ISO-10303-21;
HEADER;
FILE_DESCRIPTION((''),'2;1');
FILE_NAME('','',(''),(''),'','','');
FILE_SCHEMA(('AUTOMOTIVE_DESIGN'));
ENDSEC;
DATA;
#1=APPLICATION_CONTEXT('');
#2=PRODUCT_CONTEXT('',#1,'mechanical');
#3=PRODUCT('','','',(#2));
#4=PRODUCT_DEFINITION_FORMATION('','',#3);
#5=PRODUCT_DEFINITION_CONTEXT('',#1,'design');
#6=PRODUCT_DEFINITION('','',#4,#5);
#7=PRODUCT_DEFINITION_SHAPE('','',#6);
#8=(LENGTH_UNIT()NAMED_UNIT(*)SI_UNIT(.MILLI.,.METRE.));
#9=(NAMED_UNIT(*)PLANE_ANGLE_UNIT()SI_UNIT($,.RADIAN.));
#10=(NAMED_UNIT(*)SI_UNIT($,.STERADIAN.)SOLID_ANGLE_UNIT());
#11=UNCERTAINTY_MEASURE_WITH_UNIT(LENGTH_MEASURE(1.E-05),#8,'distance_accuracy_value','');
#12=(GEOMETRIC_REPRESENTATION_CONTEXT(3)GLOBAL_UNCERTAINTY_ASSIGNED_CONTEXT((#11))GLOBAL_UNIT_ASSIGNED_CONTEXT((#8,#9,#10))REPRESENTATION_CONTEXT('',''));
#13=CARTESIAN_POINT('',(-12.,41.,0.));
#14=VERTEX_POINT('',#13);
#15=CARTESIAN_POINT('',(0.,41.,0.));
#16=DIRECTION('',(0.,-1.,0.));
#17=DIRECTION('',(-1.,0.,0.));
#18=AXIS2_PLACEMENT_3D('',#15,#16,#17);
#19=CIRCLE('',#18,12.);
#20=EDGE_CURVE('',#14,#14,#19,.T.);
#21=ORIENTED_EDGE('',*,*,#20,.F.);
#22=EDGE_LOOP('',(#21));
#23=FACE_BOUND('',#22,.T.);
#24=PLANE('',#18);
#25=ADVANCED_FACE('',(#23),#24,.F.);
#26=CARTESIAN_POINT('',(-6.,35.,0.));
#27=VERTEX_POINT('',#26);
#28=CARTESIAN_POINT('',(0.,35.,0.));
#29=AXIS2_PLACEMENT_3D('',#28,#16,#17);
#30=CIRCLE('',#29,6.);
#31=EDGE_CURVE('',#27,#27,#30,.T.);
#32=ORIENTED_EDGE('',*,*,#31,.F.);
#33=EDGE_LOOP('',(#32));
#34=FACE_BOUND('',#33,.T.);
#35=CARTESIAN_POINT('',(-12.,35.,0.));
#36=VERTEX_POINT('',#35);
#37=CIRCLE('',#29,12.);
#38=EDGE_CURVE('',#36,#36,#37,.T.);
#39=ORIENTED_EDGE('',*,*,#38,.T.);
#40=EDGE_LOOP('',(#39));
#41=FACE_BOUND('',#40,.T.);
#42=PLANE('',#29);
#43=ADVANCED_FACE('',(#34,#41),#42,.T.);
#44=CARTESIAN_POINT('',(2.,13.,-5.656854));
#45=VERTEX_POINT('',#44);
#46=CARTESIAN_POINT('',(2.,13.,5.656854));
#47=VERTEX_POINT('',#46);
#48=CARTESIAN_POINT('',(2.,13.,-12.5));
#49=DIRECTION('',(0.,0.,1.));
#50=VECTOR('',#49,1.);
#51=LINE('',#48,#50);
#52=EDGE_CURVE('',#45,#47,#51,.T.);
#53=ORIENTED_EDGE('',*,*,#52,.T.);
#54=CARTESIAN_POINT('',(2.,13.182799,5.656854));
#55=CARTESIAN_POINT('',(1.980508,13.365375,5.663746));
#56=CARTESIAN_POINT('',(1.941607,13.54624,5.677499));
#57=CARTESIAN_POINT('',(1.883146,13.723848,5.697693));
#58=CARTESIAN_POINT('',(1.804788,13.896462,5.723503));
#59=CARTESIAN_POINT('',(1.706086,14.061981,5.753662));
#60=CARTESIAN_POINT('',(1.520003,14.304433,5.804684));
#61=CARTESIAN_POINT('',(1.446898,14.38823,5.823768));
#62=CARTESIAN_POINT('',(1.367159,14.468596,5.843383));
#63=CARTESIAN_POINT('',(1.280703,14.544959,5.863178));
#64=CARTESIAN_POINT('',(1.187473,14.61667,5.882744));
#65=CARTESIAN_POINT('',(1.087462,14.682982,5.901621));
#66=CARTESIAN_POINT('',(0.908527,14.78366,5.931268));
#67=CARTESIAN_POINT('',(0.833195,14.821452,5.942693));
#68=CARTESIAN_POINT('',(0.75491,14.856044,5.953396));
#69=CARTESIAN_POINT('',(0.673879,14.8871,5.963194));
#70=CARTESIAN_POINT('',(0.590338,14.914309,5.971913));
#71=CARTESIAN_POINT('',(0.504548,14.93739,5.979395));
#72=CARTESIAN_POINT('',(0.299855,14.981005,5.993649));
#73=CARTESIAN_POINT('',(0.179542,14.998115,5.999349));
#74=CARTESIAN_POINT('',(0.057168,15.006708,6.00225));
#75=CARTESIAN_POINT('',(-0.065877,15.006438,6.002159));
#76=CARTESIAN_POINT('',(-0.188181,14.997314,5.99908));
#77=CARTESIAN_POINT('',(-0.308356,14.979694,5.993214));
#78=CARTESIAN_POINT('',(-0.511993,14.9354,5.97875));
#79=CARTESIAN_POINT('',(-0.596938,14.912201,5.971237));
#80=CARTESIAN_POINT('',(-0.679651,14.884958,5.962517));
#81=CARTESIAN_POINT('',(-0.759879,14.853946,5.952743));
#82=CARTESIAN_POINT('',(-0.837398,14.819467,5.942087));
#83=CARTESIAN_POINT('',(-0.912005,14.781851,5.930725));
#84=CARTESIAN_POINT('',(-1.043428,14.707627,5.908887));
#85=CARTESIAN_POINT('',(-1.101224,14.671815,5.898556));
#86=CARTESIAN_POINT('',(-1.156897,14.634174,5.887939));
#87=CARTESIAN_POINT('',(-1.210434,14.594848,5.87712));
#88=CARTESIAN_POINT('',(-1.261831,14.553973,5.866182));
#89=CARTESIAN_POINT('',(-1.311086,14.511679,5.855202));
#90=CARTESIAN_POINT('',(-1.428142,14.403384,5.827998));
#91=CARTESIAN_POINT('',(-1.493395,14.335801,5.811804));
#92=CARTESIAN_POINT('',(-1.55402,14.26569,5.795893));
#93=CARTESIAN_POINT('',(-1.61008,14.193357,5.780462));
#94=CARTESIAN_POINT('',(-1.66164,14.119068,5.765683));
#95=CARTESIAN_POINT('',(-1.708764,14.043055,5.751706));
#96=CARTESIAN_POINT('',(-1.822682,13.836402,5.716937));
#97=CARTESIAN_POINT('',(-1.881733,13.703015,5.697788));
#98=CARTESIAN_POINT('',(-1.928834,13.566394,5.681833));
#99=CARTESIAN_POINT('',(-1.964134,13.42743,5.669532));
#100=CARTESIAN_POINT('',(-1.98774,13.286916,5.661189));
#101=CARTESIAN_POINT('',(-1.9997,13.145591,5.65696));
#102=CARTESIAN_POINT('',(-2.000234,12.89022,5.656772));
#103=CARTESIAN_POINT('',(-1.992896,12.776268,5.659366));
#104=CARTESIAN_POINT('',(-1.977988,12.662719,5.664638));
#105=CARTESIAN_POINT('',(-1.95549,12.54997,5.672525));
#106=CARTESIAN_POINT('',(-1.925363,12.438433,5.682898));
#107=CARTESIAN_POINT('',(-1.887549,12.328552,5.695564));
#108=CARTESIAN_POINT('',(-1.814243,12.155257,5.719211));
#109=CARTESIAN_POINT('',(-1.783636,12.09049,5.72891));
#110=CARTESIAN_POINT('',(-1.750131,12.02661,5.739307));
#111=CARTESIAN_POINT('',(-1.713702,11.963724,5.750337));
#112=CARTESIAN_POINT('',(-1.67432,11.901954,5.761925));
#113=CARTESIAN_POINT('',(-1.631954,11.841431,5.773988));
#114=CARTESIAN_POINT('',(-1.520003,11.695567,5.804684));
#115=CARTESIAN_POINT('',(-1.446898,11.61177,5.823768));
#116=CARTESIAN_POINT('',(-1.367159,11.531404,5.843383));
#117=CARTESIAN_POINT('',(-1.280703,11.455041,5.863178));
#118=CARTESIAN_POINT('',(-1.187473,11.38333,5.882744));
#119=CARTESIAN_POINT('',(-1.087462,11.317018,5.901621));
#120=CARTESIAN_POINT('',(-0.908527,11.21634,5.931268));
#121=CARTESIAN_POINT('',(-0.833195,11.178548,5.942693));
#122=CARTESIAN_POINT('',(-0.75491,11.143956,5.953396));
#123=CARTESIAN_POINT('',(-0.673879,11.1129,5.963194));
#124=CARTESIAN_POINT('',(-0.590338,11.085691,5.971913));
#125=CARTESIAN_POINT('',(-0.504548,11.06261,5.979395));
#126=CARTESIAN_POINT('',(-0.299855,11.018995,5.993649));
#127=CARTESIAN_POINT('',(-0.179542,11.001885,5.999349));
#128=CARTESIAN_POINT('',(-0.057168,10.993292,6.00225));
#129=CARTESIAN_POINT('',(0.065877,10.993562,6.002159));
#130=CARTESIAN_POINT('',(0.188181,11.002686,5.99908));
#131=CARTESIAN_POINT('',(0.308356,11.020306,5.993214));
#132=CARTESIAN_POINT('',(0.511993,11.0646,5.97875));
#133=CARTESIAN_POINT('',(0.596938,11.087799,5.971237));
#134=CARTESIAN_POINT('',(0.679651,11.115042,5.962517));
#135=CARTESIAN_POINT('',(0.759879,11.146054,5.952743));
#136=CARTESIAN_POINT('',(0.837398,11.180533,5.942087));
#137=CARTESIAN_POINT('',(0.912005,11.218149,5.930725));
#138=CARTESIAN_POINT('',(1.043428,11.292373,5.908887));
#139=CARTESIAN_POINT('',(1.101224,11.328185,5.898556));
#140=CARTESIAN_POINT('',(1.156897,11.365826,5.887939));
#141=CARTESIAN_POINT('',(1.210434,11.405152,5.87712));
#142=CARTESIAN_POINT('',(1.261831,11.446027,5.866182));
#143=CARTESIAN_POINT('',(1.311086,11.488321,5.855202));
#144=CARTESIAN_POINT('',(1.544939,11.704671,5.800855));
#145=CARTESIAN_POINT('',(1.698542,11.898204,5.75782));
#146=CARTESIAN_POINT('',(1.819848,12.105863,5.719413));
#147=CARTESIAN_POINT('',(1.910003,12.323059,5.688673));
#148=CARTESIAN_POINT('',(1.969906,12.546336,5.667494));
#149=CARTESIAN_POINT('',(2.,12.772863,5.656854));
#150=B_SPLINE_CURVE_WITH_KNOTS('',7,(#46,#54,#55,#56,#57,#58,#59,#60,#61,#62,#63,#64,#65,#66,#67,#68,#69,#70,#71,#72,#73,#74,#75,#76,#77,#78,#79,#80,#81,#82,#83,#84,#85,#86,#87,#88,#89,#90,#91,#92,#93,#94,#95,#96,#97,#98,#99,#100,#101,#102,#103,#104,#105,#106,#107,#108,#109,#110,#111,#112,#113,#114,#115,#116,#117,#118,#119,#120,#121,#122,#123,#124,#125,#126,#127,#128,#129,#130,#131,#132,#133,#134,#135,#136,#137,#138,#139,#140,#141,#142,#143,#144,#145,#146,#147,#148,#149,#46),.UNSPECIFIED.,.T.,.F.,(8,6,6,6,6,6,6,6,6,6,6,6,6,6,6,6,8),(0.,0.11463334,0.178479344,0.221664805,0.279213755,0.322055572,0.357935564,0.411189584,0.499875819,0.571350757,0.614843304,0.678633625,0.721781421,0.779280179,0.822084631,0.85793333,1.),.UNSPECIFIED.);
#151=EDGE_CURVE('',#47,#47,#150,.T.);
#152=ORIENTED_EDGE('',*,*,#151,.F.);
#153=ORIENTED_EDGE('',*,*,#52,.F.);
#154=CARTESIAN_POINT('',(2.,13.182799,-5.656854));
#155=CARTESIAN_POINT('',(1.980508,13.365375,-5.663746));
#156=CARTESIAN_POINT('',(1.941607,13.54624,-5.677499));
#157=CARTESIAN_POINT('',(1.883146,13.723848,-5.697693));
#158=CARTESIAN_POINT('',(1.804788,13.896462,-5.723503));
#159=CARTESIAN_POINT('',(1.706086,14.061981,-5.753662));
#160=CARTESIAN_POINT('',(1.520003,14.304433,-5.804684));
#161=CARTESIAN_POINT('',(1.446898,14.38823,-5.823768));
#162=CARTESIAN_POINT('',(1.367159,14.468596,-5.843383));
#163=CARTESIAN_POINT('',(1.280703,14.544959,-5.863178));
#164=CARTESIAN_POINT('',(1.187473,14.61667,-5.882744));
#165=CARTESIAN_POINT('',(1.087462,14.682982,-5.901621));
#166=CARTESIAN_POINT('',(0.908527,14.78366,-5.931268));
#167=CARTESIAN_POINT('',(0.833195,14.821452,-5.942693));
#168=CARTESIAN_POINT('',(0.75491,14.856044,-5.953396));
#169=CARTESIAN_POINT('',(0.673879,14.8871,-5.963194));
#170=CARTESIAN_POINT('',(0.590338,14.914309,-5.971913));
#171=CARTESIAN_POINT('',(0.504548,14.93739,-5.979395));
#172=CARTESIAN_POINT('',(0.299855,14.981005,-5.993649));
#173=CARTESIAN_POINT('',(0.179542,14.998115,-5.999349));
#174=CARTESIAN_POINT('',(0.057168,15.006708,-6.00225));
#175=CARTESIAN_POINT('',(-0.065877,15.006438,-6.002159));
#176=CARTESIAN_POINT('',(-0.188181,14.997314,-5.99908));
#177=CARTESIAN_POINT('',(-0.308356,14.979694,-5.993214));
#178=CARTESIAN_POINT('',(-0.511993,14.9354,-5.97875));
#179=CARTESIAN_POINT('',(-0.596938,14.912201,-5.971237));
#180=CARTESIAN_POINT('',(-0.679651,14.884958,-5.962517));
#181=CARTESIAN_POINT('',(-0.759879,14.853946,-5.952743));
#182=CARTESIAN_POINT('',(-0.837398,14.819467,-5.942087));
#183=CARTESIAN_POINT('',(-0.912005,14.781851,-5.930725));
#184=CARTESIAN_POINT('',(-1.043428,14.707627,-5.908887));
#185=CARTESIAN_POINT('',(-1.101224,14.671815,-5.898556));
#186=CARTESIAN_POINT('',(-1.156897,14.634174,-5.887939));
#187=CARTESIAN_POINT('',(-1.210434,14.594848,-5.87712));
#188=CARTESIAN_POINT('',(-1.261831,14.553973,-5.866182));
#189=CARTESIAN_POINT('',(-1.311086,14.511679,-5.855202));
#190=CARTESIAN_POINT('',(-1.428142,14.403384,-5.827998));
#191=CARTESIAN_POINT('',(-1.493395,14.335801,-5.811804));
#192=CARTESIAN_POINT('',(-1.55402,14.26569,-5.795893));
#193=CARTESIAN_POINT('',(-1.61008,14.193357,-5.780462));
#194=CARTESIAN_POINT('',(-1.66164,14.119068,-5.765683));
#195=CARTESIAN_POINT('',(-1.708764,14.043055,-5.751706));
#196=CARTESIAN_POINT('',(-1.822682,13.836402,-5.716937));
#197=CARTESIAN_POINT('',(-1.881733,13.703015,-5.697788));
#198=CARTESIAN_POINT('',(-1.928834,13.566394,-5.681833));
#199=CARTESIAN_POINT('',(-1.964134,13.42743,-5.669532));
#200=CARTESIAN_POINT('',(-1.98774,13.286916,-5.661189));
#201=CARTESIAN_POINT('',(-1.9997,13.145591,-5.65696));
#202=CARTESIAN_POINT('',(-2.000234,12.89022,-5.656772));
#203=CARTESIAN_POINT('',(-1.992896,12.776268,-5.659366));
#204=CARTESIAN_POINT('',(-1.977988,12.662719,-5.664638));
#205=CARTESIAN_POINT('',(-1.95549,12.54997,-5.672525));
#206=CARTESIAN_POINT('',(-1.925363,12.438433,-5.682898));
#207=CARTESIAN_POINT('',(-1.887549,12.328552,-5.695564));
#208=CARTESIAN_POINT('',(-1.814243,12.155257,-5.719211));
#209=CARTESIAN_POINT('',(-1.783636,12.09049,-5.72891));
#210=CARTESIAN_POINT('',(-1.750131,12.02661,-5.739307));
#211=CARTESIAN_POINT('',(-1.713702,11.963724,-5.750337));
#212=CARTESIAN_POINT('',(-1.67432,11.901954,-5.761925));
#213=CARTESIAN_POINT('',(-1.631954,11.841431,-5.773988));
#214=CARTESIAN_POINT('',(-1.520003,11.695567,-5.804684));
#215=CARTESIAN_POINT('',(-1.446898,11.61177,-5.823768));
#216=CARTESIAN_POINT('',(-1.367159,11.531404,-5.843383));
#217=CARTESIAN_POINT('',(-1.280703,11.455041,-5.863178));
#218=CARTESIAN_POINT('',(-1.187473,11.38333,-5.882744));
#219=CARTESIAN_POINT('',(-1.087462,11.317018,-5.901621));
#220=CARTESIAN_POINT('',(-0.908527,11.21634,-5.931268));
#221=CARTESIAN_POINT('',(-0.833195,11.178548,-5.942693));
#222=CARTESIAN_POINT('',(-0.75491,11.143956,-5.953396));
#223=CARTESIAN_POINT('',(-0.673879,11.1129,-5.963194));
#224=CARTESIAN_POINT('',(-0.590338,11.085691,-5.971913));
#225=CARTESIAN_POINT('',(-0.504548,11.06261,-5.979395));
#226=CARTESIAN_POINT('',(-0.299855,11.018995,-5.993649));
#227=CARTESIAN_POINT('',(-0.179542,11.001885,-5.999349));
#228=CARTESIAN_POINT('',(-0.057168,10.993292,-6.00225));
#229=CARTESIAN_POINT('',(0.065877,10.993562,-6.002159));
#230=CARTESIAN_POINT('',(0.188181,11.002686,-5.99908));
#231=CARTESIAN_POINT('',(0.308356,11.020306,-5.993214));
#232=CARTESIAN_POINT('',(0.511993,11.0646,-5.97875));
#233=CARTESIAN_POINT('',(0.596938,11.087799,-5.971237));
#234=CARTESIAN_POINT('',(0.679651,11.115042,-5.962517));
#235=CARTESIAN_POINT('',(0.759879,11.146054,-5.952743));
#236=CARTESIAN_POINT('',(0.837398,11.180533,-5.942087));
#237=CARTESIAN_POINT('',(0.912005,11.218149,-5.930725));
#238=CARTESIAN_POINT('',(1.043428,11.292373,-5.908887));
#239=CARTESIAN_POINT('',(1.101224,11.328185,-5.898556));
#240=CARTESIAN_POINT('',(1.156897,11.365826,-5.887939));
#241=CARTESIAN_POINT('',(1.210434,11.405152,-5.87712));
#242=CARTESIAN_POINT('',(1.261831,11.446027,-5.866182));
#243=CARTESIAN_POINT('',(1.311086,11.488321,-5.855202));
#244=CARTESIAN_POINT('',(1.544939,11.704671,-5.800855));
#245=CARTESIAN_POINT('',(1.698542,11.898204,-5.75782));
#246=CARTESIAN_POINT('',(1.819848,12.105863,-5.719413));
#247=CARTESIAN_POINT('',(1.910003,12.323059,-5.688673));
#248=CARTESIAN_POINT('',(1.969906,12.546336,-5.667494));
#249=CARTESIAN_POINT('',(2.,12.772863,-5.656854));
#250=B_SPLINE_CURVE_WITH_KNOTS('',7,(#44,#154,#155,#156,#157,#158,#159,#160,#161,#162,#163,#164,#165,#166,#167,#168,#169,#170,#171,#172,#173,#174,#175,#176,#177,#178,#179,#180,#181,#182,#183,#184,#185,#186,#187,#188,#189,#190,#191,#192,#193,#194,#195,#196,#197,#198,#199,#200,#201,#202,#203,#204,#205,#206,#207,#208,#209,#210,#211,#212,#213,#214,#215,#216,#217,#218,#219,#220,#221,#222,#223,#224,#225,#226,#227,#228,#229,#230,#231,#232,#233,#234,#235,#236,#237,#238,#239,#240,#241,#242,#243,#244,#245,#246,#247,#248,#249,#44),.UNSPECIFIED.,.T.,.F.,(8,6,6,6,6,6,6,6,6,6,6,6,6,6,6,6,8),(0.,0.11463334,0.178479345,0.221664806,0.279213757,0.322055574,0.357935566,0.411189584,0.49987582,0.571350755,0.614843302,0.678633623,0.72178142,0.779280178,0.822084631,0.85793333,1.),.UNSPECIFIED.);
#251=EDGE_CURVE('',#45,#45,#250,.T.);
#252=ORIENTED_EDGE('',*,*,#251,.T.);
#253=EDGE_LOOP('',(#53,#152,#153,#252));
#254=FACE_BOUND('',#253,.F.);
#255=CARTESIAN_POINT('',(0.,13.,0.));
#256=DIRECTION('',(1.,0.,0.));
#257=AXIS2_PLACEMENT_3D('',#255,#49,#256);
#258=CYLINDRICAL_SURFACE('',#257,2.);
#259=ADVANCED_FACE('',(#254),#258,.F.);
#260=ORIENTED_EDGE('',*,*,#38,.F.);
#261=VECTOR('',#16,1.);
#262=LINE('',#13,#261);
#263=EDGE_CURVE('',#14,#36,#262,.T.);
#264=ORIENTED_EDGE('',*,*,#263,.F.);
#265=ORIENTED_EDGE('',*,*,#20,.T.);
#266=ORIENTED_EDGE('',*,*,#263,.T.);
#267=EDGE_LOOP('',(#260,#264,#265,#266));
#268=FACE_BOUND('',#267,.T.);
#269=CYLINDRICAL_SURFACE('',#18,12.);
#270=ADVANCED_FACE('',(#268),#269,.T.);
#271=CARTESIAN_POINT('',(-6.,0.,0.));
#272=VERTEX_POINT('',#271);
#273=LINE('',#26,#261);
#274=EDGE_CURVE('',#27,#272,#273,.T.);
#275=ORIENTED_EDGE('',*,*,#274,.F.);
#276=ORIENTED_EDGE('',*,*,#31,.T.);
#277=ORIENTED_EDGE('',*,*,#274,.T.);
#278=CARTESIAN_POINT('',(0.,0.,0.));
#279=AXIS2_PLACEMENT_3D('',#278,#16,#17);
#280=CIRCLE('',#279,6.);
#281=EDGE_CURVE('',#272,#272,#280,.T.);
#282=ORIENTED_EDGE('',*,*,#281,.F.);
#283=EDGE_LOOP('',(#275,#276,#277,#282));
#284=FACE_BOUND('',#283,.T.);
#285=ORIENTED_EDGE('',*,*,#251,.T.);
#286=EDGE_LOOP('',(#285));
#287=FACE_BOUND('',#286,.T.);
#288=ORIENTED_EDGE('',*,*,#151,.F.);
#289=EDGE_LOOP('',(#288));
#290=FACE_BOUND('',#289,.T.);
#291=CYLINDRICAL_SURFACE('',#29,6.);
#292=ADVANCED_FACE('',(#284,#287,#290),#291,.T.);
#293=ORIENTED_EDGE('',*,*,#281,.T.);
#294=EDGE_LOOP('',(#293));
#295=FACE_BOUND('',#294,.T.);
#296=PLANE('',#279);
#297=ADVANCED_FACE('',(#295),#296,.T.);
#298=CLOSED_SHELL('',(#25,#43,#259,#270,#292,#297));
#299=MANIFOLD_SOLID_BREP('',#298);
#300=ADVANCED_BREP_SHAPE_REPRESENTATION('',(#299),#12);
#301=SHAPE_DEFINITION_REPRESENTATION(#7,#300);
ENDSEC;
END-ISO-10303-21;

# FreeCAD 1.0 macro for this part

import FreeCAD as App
import Part
import Sketcher

doc = App.newDocument("Part")
params = doc.addObject("Spreadsheet::Sheet", "Params")
for row, (alias, value) in enumerate([
    ("sketch1_width", "12 mm"),
    ("sketch1_height", "41 mm"),
    ("revolution_angle", "360 deg"),
    ("sketch2_diameter", "4 mm"),
    ("pocket1_length", "25 mm"),
], start=1):
    params.set(f"A{row}", alias)
    params.set(f"B{row}", "=" + value)
    params.setAlias(f"B{row}", alias)

body = doc.addObject("PartDesign::Body", "Body")

# Sketch on XY plane
sketch1 = body.newObject("Sketcher::SketchObject", "Sketch")
sketch1.AttachmentSupport = (doc.getObject("XY_Plane"), [""])
sketch1.MapMode = "FlatFace"
sketch1.addGeometry([
    Part.LineSegment(App.Vector(0, 0, 0), App.Vector(0, 41, 0)),  # 0
    Part.LineSegment(App.Vector(0, 41, 0), App.Vector(-12, 41, 0)),  # 1
    Part.LineSegment(App.Vector(-12, 41, 0), App.Vector(-12, 35, 0)),  # 2
    Part.LineSegment(App.Vector(-12, 35, 0), App.Vector(-6, 35, 0)),  # 3
    Part.LineSegment(App.Vector(-6, 35, 0), App.Vector(-6, 0, 0)),  # 4
    Part.LineSegment(App.Vector(-6, 0, 0), App.Vector(0, 0, 0)),  # 5
], False)
sketch1.addConstraint([
    Sketcher.Constraint("Coincident", 0, 2, 1, 1),
    Sketcher.Constraint("Coincident", 1, 2, 2, 1),
    Sketcher.Constraint("Coincident", 2, 2, 3, 1),
    Sketcher.Constraint("Coincident", 3, 2, 4, 1),
    Sketcher.Constraint("Coincident", 4, 2, 5, 1),
    Sketcher.Constraint("Coincident", 5, 2, 0, 1),
    Sketcher.Constraint("Vertical", 0),
    Sketcher.Constraint("Horizontal", 1),
    Sketcher.Constraint("Vertical", 2),
    Sketcher.Constraint("Horizontal", 3),
    Sketcher.Constraint("Vertical", 4),
    Sketcher.Constraint("Horizontal", 5),
    Sketcher.Constraint("Coincident", 5, 2, -1, 1),
    Sketcher.Constraint("Equal", 3, 5),
    Sketcher.Constraint("Equal", 5, 2),
    Sketcher.Constraint("DistanceX", 1, 2, 1, 1, 12.0),
    Sketcher.Constraint("DistanceY", 0, 1, 0, 2, 41.0),
])
sketch1.setExpression("Constraints[15]", "Params.sketch1_width")
sketch1.setExpression("Constraints[16]", "Params.sketch1_height")
revolution = body.newObject("PartDesign::Revolution", "Revolution")
revolution.Profile = sketch1
revolution.ReferenceAxis = (sketch1, ["V_Axis"])
revolution.setExpression("Angle", "Params.revolution_angle")

# Sketch on XY plane
sketch2 = body.newObject("Sketcher::SketchObject", "Sketch001")
sketch2.AttachmentSupport = (doc.getObject("XY_Plane"), [""])
sketch2.MapMode = "FlatFace"
sketch2.addGeometry(Part.Circle(App.Vector(0, 13, 0), App.Vector(0, 0, 1), 2), False)
sketch2.addConstraint([
    Sketcher.Constraint("PointOnObject", 0, 3, -2),
    Sketcher.Constraint("Diameter", 0, 4.0),
    Sketcher.Constraint("DistanceY", -1, 1, 0, 3, 13.0),
])
sketch2.setExpression("Constraints[1]", "Params.sketch2_diameter")
pocket1 = body.newObject("PartDesign::Pocket", "Pocket")
pocket1.Profile = sketch2
pocket1.setExpression("Length", "Params.pocket1_length")
pocket1.Midplane = True

doc.recompute()
